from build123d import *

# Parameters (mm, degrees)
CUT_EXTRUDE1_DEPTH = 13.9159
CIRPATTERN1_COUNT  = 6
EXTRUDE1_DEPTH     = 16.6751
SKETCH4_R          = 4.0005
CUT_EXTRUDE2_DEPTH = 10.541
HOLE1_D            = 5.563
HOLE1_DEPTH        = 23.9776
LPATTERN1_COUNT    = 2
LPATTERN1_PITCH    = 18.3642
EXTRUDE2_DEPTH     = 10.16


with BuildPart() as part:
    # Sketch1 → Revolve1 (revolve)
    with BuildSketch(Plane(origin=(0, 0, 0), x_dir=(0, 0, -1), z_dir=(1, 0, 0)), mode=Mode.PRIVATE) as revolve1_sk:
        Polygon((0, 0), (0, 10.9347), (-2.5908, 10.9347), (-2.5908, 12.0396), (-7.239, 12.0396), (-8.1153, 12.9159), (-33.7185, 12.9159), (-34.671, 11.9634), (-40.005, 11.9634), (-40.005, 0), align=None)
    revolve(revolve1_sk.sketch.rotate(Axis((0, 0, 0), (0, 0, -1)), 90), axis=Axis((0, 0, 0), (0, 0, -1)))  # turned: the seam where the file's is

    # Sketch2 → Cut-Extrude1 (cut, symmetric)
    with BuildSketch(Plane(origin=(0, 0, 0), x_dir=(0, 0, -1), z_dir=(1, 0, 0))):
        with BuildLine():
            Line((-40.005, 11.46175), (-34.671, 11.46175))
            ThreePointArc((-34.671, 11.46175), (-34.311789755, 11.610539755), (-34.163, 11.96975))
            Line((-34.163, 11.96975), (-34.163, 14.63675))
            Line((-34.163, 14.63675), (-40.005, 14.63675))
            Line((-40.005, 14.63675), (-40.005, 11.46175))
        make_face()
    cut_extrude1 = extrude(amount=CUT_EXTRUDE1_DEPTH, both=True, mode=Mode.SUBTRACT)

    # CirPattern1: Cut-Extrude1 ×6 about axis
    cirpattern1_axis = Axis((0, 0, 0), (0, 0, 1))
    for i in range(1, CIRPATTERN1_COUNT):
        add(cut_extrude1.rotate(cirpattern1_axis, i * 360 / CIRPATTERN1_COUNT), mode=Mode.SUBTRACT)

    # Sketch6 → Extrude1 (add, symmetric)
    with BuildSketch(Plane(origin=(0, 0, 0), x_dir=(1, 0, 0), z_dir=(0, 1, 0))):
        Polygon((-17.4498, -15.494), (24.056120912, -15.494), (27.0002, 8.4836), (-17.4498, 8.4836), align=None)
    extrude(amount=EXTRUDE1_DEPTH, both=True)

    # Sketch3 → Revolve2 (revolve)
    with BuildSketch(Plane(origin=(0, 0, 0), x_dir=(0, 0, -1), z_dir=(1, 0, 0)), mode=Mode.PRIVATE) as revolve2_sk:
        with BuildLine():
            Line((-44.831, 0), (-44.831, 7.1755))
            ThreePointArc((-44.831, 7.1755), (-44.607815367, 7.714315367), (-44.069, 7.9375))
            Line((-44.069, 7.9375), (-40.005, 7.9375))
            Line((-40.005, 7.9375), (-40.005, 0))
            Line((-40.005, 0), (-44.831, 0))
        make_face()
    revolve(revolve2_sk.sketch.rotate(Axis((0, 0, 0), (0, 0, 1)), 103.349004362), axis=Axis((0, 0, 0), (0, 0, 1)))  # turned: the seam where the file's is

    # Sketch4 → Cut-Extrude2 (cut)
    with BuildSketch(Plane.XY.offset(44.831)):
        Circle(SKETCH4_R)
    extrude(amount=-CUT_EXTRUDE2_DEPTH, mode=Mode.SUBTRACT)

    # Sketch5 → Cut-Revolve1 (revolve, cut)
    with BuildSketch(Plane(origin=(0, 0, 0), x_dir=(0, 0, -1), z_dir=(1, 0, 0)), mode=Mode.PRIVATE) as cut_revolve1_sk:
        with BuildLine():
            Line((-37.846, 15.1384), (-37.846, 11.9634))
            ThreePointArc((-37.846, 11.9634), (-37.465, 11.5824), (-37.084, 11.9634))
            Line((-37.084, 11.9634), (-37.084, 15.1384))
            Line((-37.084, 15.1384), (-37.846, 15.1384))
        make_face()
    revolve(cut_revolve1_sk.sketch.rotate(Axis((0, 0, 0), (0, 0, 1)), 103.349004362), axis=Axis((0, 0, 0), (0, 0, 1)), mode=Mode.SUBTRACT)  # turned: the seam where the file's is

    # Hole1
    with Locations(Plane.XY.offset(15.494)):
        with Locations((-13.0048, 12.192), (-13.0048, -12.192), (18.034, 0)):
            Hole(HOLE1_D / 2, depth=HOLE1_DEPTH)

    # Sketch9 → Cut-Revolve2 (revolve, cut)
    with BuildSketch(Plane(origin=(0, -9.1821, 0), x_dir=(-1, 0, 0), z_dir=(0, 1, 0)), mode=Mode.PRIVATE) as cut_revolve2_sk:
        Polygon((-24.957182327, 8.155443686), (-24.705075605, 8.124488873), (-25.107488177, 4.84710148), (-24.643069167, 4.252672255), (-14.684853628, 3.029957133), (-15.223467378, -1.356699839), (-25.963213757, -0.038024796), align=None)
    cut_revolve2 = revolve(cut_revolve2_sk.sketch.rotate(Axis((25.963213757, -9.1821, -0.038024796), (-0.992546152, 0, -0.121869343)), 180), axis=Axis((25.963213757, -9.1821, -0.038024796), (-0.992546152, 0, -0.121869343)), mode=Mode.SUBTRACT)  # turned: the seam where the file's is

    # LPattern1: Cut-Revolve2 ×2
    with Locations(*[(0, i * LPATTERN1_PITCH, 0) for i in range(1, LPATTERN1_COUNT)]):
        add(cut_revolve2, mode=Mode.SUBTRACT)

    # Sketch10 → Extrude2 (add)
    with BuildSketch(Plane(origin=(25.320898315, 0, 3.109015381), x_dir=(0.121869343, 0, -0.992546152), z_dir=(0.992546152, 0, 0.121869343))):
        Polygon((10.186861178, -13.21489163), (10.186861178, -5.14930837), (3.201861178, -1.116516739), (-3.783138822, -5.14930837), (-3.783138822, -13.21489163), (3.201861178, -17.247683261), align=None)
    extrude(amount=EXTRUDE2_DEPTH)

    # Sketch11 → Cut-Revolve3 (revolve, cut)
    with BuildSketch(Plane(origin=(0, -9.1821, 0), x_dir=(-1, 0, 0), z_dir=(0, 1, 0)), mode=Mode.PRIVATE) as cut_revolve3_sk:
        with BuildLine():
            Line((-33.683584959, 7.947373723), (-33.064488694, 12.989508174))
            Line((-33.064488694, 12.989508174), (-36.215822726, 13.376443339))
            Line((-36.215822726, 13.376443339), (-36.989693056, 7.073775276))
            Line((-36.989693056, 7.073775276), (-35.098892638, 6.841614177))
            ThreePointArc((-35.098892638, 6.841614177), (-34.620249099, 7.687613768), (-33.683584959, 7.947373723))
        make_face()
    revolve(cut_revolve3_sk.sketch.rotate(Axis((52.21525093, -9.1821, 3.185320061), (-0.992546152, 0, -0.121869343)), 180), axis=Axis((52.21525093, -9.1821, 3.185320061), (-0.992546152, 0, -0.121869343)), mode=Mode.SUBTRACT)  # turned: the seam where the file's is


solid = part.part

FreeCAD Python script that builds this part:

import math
import FreeCAD as App
import Part
import Sketcher
Q = App.Units.Quantity


def add_polygon(sketch, points):
    """Adds a closed chain of lines whose ends are joined by coincident constraints."""
    first, n = sketch.GeometryCount, len(points)
    for a, b in zip(points, points[1:] + points[:1]):
        sketch.addGeometry(Part.LineSegment(App.Vector(*a, 0), App.Vector(*b, 0)), False)
    for i in range(n):
        sketch.addConstraint(Sketcher.Constraint("Coincident", first + i, 2, first + (i + 1) % n, 1))

doc = App.newDocument("Part")
params = doc.addObject("Spreadsheet::Sheet", "Params")
for row, (alias, value) in enumerate([
    ("sketch1_height", "0.21 in"),
    ("sketch1_width", "0.471 in"),
    ("sketch1_height2", "0.102 in"),
    ("sketch1_height3", "0.183 in"),
    ("sketch1_height4", "1.008 in"),
    ("revolution_angle", "360 deg"),
    ("sketch2_radius", "0.02 in"),
    ("sketch2_height", "0.21 in"),
    ("sketch2_width", "0.105 in"),
    ("pocket1_length", "27.8318 mm"),
    ("sketch3_width", "1.75 in"),
    ("sketch3_height", "0.944 in"),
    ("pad1_length", "1.313 in"),
    ("sketch4_radius", "0.03 in"),
    ("sketch4_height", "0.19 in"),
    ("sketch4_width", "0.3125 in"),
    ("revolution2_angle", "360 deg"),
    ("sketch5_diameter", "0.315 in"),
    ("pocket2_length", "0.415 in"),
    ("sketch6_radius", "0.015 in"),
    ("sketch6_width", "0.125 in"),
    ("groove_angle", "360 deg"),
    ("hole_diameter", "5.563 mm"),
    ("hole_depth", "0.944 in"),
    ("sketch8_length", "0.01 in"),
    ("sketch8_length2", "0.13 in"),
    ("sketch8_length3", "0.325 in"),
    ("sketch8_length4", "0.426 in"),
    ("sketch8_length5", "0.174 in"),
    ("groove2_angle", "360 deg"),
    ("linearpattern_pitch", "0.723 in"),
    ("pad2_length", "0.4 in"),
    ("sketch10_radius", "0.05 in"),
    ("sketch10_length", "0.2 in"),
    ("sketch10_length2", "0.25 in"),
    ("sketch10_length3", "0.125 in"),
    ("sketch10_length4", "0.075 in"),
    ("groove3_angle", "360 deg"),
], start=1):
    params.set(f"A{row}", alias)
    params.set(f"B{row}", "=" + value)
    params.setAlias(f"B{row}", alias)

body = doc.addObject("PartDesign::Body", "Body")

# Sketch on YZ plane
sketch1 = body.newObject("Sketcher::SketchObject", "Sketch")
sketch1.AttachmentSupport = (doc.getObject("YZ_Plane"), [""])
sketch1.MapMode = "FlatFace"
add_polygon(sketch1, [(0, 0), (10.9, 0), (10.9, 2.6), (12, 2.6), (12, 7.2), (12.9, 8.1), (12.9, 33.7), (12, 34.7), (12, 40), (0, 40)])  # lines 0-9
sketch1.addConstraint(Sketcher.Constraint("Horizontal", 0))
sketch1.addConstraint(Sketcher.Constraint("Vertical", 1))
sketch1.addConstraint(Sketcher.Constraint("Horizontal", 2))
sketch1.addConstraint(Sketcher.Constraint("Vertical", 3))
sketch1.addConstraint(Sketcher.Constraint("Vertical", 5))
sketch1.addConstraint(Sketcher.Constraint("Vertical", 7))
sketch1.addConstraint(Sketcher.Constraint("Horizontal", 8))
sketch1.addConstraint(Sketcher.Constraint("Vertical", 9))
sketch1.addConstraint(Sketcher.Constraint("Coincident", 9, 2, -1, 1))
sketch1.addConstraint(Sketcher.Constraint("Perpendicular", 4, 6))
sketch1.addConstraint(Sketcher.Constraint("Angle", 4, Q("45 deg")))
sketch1.addConstraint(Sketcher.Constraint("DistanceY", 7, 1, 7, 2, Q("0.21 in")))
sketch1.addConstraint(Sketcher.Constraint("DistanceX", 8, 2, 8, 1, Q("0.471 in")))
sketch1.addConstraint(Sketcher.Constraint("DistanceY", 1, 1, 1, 2, Q("0.102 in")))
sketch1.addConstraint(Sketcher.Constraint("DistanceY", 3, 1, 3, 2, Q("0.183 in")))
sketch1.addConstraint(Sketcher.Constraint("DistanceY", 5, 1, 5, 2, Q("1.008 in")))
sketch1.addConstraint(Sketcher.Constraint("DistanceY", 9, 2, 9, 1, Q("1.575 in")))
sketch1.addConstraint(Sketcher.Constraint("DistanceX", 0, 1, 0, 2, Q("0.4305 in")))
sketch1.addConstraint(Sketcher.Constraint("DistanceX", 2, 1, 2, 2, Q("0.0435 in")))
sketch1.setExpression("Constraints[21]", "Params.sketch1_height")
sketch1.setExpression("Constraints[22]", "Params.sketch1_width")
sketch1.setExpression("Constraints[23]", "Params.sketch1_height2")
sketch1.setExpression("Constraints[24]", "Params.sketch1_height3")
sketch1.setExpression("Constraints[25]", "Params.sketch1_height4")
revolution = body.newObject("PartDesign::Revolution", "Revolution")
revolution.Profile = sketch1
revolution.ReferenceAxis = (sketch1, ["V_Axis"])
revolution.setExpression("Angle", "Params.revolution_angle")

# Sketch on YZ plane
sketch2 = body.newObject("Sketcher::SketchObject", "Sketch001")
sketch2.AttachmentSupport = (doc.getObject("YZ_Plane"), [""])
sketch2.MapMode = "FlatFace"
sketch2.addGeometry(Part.LineSegment(App.Vector(11.5, 40, 0), App.Vector(11.5, 34.7, 0)), False)
sketch2.addGeometry(Part.ArcOfCircle(Part.Circle(App.Vector(12, 34.7, 0), App.Vector(0, 0, 1), 0.5), math.radians(180), math.radians(270)), False)
sketch2.addGeometry(Part.LineSegment(App.Vector(12, 34.2, 0), App.Vector(14.6, 34.2, 0)), False)
sketch2.addGeometry(Part.LineSegment(App.Vector(14.6, 34.2, 0), App.Vector(14.6, 40, 0)), False)
sketch2.addGeometry(Part.LineSegment(App.Vector(14.6, 40, 0), App.Vector(11.5, 40, 0)), False)
sketch2.addConstraint(Sketcher.Constraint("Tangent", 0, 2, 1, 1))
sketch2.addConstraint(Sketcher.Constraint("Tangent", 1, 2, 2, 1))
sketch2.addConstraint(Sketcher.Constraint("Coincident", 2, 2, 3, 1))
sketch2.addConstraint(Sketcher.Constraint("Coincident", 3, 2, 4, 1))
sketch2.addConstraint(Sketcher.Constraint("Coincident", 4, 2, 0, 1))
sketch2.addConstraint(Sketcher.Constraint("Vertical", 0))
sketch2.addConstraint(Sketcher.Constraint("Horizontal", 2))
sketch2.addConstraint(Sketcher.Constraint("Vertical", 3))
sketch2.addConstraint(Sketcher.Constraint("Horizontal", 4))
sketch2.addConstraint(Sketcher.Constraint("Radius", 1, Q("0.02 in")))
sketch2.addConstraint(Sketcher.Constraint("DistanceY", 0, 2, 0, 1, Q("0.21 in")))
sketch2.addConstraint(Sketcher.Constraint("DistanceX", 2, 1, 2, 2, Q("0.105 in")))
sketch2.addConstraint(Sketcher.Constraint("DistanceY", -1, 1, 1, 3, Q("1.365 in")))
sketch2.addConstraint(Sketcher.Constraint("DistanceX", -1, 1, 1, 3, 11.96975))
sketch2.setExpression("Constraints[9]", "Params.sketch2_radius")
sketch2.setExpression("Constraints[10]", "Params.sketch2_height")
sketch2.setExpression("Constraints[11]", "Params.sketch2_width")
pocket1 = body.newObject("PartDesign::Pocket", "Pocket")
pocket1.Profile = sketch2
pocket1.setExpression("Length", "Params.pocket1_length")
pocket1.Midplane = True
doc.recompute()

polarpattern = body.newObject("PartDesign::PolarPattern", "PolarPattern")
polarpattern.Originals = [pocket1]
polarpattern.Axis = (doc.getObject("Z_Axis"), [""])
polarpattern.Angle = 360
polarpattern.Occurrences = 6
body.Tip = polarpattern

# Sketch on XZ plane
sketch3 = body.newObject("Sketcher::SketchObject", "Sketch002")
sketch3.AttachmentSupport = (doc.getObject("XZ_Plane"), [""])
sketch3.MapMode = "FlatFace"
add_polygon(sketch3, [(-17, 15), (24, 15), (27, -8), (-17, -8)])  # lines 0-3
sketch3.addConstraint(Sketcher.Constraint("Horizontal", 0))
sketch3.addConstraint(Sketcher.Constraint("Horizontal", 2))
sketch3.addConstraint(Sketcher.Constraint("Vertical", 3))
sketch3.addConstraint(Sketcher.Constraint("Angle", 1, Q("-83 deg")))
sketch3.addConstraint(Sketcher.Constraint("DistanceX", 2, 2, 2, 1, Q("1.75 in")))
sketch3.addConstraint(Sketcher.Constraint("DistanceY", 3, 1, 3, 2, Q("0.944 in")))
sketch3.addConstraint(Sketcher.Constraint("DistanceY", -1, 1, 0, 2, Q("0.61 in")))
sketch3.addConstraint(Sketcher.Constraint("DistanceX", -1, 1, 1, 2, Q("1.063 in")))
sketch3.setExpression("Constraints[8]", "Params.sketch3_width")
sketch3.setExpression("Constraints[9]", "Params.sketch3_height")
pad1 = body.newObject("PartDesign::Pad", "Pad")
pad1.Profile = sketch3
pad1.setExpression("Length", "Params.pad1_length")
pad1.Midplane = True

# Sketch on YZ plane
sketch4 = body.newObject("Sketcher::SketchObject", "Sketch003")
sketch4.AttachmentSupport = (doc.getObject("YZ_Plane"), [""])
sketch4.MapMode = "FlatFace"
sketch4.addGeometry(Part.LineSegment(App.Vector(7.2, 44.8, 0), App.Vector(0, 44.8, 0)), False)
sketch4.addGeometry(Part.LineSegment(App.Vector(0, 44.8, 0), App.Vector(0, 40, 0)), False)
sketch4.addGeometry(Part.LineSegment(App.Vector(0, 40, 0), App.Vector(7.9, 40, 0)), False)
sketch4.addGeometry(Part.LineSegment(App.Vector(7.9, 40, 0), App.Vector(7.9, 44.1, 0)), False)
sketch4.addGeometry(Part.ArcOfCircle(Part.Circle(App.Vector(7.2, 44.1, 0), App.Vector(0, 0, 1), 0.8), math.radians(0), math.radians(90)), False)
sketch4.addConstraint(Sketcher.Constraint("Coincident", 0, 2, 1, 1))
sketch4.addConstraint(Sketcher.Constraint("Coincident", 1, 2, 2, 1))
sketch4.addConstraint(Sketcher.Constraint("Coincident", 2, 2, 3, 1))
sketch4.addConstraint(Sketcher.Constraint("Tangent", 3, 2, 4, 1))
sketch4.addConstraint(Sketcher.Constraint("Tangent", 4, 2, 0, 1))
sketch4.addConstraint(Sketcher.Constraint("Horizontal", 0))
sketch4.addConstraint(Sketcher.Constraint("Vertical", 1))
sketch4.addConstraint(Sketcher.Constraint("Horizontal", 2))
sketch4.addConstraint(Sketcher.Constraint("Vertical", 3))
sketch4.addConstraint(Sketcher.Constraint("PointOnObject", 0, 2, -2))
sketch4.addConstraint(Sketcher.Constraint("Radius", 4, Q("0.03 in")))
sketch4.addConstraint(Sketcher.Constraint("DistanceY", 1, 2, 1, 1, Q("0.19 in")))
sketch4.addConstraint(Sketcher.Constraint("DistanceX", 2, 1, 2, 2, Q("0.3125 in")))
sketch4.addConstraint(Sketcher.Constraint("DistanceY", -1, 1, 4, 3, Q("1.735 in")))
sketch4.setExpression("Constraints[10]", "Params.sketch4_radius")
sketch4.setExpression("Constraints[11]", "Params.sketch4_height")
sketch4.setExpression("Constraints[12]", "Params.sketch4_width")
revolution2 = body.newObject("PartDesign::Revolution", "Revolution001")
revolution2.Profile = sketch4
revolution2.ReferenceAxis = (sketch4, ["V_Axis"])
revolution2.setExpression("Angle", "Params.revolution2_angle")

# Sketch on XY plane
sketch5 = body.newObject("Sketcher::SketchObject", "Sketch004")
sketch5.AttachmentSupport = (doc.getObject("XY_Plane"), [""])
sketch5.MapMode = "FlatFace"
sketch5.AttachmentOffset = App.Placement(App.Vector(0, 0, 1.765 * 25.4), App.Rotation())
sketch5.addGeometry(Part.Circle(App.Vector(0, 0, 0), App.Vector(0, 0, 1), 4), False)
sketch5.addConstraint(Sketcher.Constraint("Coincident", 0, 3, -1, 1))
sketch5.addConstraint(Sketcher.Constraint("Diameter", 0, Q("0.315 in")))
sketch5.setExpression("Constraints[1]", "Params.sketch5_diameter")
pocket2 = body.newObject("PartDesign::Pocket", "Pocket001")
pocket2.Profile = sketch5
pocket2.setExpression("Length", "Params.pocket2_length")

# Sketch on YZ plane
sketch6 = body.newObject("Sketcher::SketchObject", "Sketch005")
sketch6.AttachmentSupport = (doc.getObject("YZ_Plane"), [""])
sketch6.MapMode = "FlatFace"
sketch6.addGeometry(Part.LineSegment(App.Vector(15.14, 37.85, 0), App.Vector(11.96, 37.85, 0)), False)
sketch6.addGeometry(Part.ArcOfCircle(Part.Circle(App.Vector(11.96, 37.47, 0), App.Vector(0, 0, 1), 0.38), math.radians(90), math.radians(270)), False)
sketch6.addGeometry(Part.LineSegment(App.Vector(11.96, 37.08, 0), App.Vector(15.14, 37.08, 0)), False)
sketch6.addGeometry(Part.LineSegment(App.Vector(15.14, 37.08, 0), App.Vector(15.14, 37.85, 0)), False)
sketch6.addConstraint(Sketcher.Constraint("Tangent", 0, 2, 1, 1))
sketch6.addConstraint(Sketcher.Constraint("Tangent", 1, 2, 2, 1))
sketch6.addConstraint(Sketcher.Constraint("Coincident", 2, 2, 3, 1))
sketch6.addConstraint(Sketcher.Constraint("Coincident", 3, 2, 0, 1))
sketch6.addConstraint(Sketcher.Constraint("Horizontal", 0))
sketch6.addConstraint(Sketcher.Constraint("Horizontal", 2))
sketch6.addConstraint(Sketcher.Constraint("Vertical", 3))
sketch6.addConstraint(Sketcher.Constraint("Radius", 1, Q("0.015 in")))
sketch6.addConstraint(Sketcher.Constraint("DistanceX", 0, 2, 0, 1, Q("0.125 in")))
sketch6.addConstraint(Sketcher.Constraint("DistanceY", -1, 1, 0, 2, Q("1.49 in")))
sketch6.addConstraint(Sketcher.Constraint("DistanceX", -1, 1, 1, 3, Q("0.471 in")))
sketch6.setExpression("Constraints[7]", "Params.sketch6_radius")
sketch6.setExpression("Constraints[8]", "Params.sketch6_width")
groove = body.newObject("PartDesign::Groove", "Groove")
groove.Profile = sketch6
groove.ReferenceAxis = (sketch6, ["V_Axis"])
groove.setExpression("Angle", "Params.groove_angle")

# Sketch on XY plane
sketch7 = body.newObject("Sketcher::SketchObject", "Sketch006")
sketch7.AttachmentSupport = (doc.getObject("XY_Plane"), [""])
sketch7.MapMode = "FlatFace"
sketch7.AttachmentOffset = App.Placement(App.Vector(0, 0, 0.61 * 25.4), App.Rotation())
sketch7.addGeometry(Part.Circle(App.Vector(-13, 12.2, 0), App.Vector(0, 0, 1), 2.8), False)
sketch7.addGeometry(Part.Circle(App.Vector(-13, -12.2, 0), App.Vector(0, 0, 1), 2.8), False)
sketch7.addGeometry(Part.Circle(App.Vector(18, 0, 0), App.Vector(0, 0, 1), 2.8), False)
sketch7.addConstraint(Sketcher.Constraint("Equal", 0, 1))
sketch7.addConstraint(Sketcher.Constraint("Equal", 1, 2))
sketch7.addConstraint(Sketcher.Constraint("Symmetric", 0, 3, 1, 3, -1))
sketch7.addConstraint(Sketcher.Constraint("PointOnObject", 2, 3, -1))
sketch7.addConstraint(Sketcher.Constraint("Diameter", 0, 5.563))
sketch7.addConstraint(Sketcher.Constraint("DistanceY", -1, 1, 0, 3, Q("0.48 in")))
sketch7.addConstraint(Sketcher.Constraint("DistanceX", -1, 1, 2, 3, Q("0.71 in")))
sketch7.addConstraint(Sketcher.Constraint("DistanceX", 0, 3, -1, 1, Q("0.512 in")))
doc.recompute()
hole = body.newObject("PartDesign::Hole", "Hole")
hole.Profile = sketch7
hole.ThreadType = "None"
hole.setExpression("Diameter", "Params.hole_diameter")
hole.DepthType = "Dimension"
hole.setExpression("Depth", "Params.hole_depth")
hole.DrillPoint = "Flat"

# Sketch on XZ plane
sketch8 = body.newObject("Sketcher::SketchObject", "Sketch007")
sketch8.AttachmentSupport = (doc.getObject("XZ_Plane"), [""])
sketch8.MapMode = "FlatFace"
sketch8.AttachmentOffset = App.Placement(App.Vector(0, 0, 0.3615 * 25.4), App.Rotation())
add_polygon(sketch8, [(24.71, 8.12), (24.96, 8.16), (25.96, -0.04), (15.22, -1.36), (14.68, 3.03), (24.64, 4.25), (25.11, 4.85)])  # lines 0-6
sketch8.addGeometry(Part.LineSegment(App.Vector(25.96, -0.04, 0), App.Vector(15.22, -1.36, 0)), True)  # axis
sketch8.addConstraint(Sketcher.Constraint("Coincident", 7, 1, 1, 2))
sketch8.addConstraint(Sketcher.Constraint("Coincident", 7, 2, 2, 2))
sketch8.addConstraint(Sketcher.Constraint("Perpendicular", 0, 1))
sketch8.addConstraint(Sketcher.Constraint("Perpendicular", 1, 2))
sketch8.addConstraint(Sketcher.Constraint("Perpendicular", 2, 3))
sketch8.addConstraint(Sketcher.Constraint("Perpendicular", 3, 4))
sketch8.addConstraint(Sketcher.Constraint("Perpendicular", 4, 6))
sketch8.addConstraint(Sketcher.Constraint("Angle", 0, Q("7 deg")))
sketch8.addConstraint(Sketcher.Constraint("Angle", 5, Q("52 deg")))
sketch8.addConstraint(Sketcher.Constraint("Distance", 0, Q("0.01 in")))
sketch8.addConstraint(Sketcher.Constraint("Distance", 6, Q("0.13 in")))
sketch8.addConstraint(Sketcher.Constraint("Distance", 1, Q("0.325 in")))
sketch8.addConstraint(Sketcher.Constraint("Distance", 2, Q("0.426 in")))
sketch8.addConstraint(Sketcher.Constraint("Distance", 3, Q("0.174 in")))
sketch8.addConstraint(Sketcher.Constraint("DistanceY", 2, 2, -1, 1, 1.3567))
sketch8.addConstraint(Sketcher.Constraint("DistanceX", -1, 1, 4, 2, 24.643069))
sketch8.setExpression("Constraints[16]", "Params.sketch8_length")
sketch8.setExpression("Constraints[17]", "Params.sketch8_length2")
sketch8.setExpression("Constraints[18]", "Params.sketch8_length3")
sketch8.setExpression("Constraints[19]", "Params.sketch8_length4")
sketch8.setExpression("Constraints[20]", "Params.sketch8_length5")
groove2 = body.newObject("PartDesign::Groove", "Groove001")
groove2.Profile = sketch8
groove2.ReferenceAxis = (sketch8, ["Axis0"])
groove2.setExpression("Angle", "Params.groove2_angle")
doc.recompute()

linearpattern = body.newObject("PartDesign::LinearPattern", "LinearPattern")
linearpattern.Originals = [groove2]
linearpattern.Direction = (doc.getObject("Y_Axis"), [""])
linearpattern.Mode = "offset"
linearpattern.setExpression("Offset", "Params.linearpattern_pitch")
linearpattern.Occurrences = 2
body.Tip = linearpattern

# Sketch on an angled plane
sketch9 = body.newObject("Sketcher::SketchObject", "Sketch008")
sketch9.Placement = App.Placement(App.Vector(25.320898, 0, 3.109015), App.Rotation(App.Vector(0.121869343, 0, -0.992546152), App.Vector(0, 1.000000001, 0), App.Vector(0.992546152, 0, 0.121869343), "ZXY"))
add_polygon(sketch9, [(10, -13), (10, -5), (3, -1), (-4, -5), (-4, -13), (3, -17)])  # lines 0-5
sketch9.addConstraint(Sketcher.Constraint("Vertical", 0))
sketch9.addConstraint(Sketcher.Constraint("Vertical", 3))
sketch9.addConstraint(Sketcher.Constraint("Parallel", 1, 4))
sketch9.addConstraint(Sketcher.Constraint("Parallel", 2, 5))
sketch9.addConstraint(Sketcher.Constraint("Horizontal", 0, 2, 2, 2))
sketch9.addConstraint(Sketcher.Constraint("Horizontal", 3, 2, 5, 2))
sketch9.addConstraint(Sketcher.Constraint("Vertical", 1, 2, 4, 2))
sketch9.addConstraint(Sketcher.Constraint("Angle", 1, Q("150 deg")))
sketch9.addConstraint(Sketcher.Constraint("DistanceX", 2, 2, 0, 2, Q("0.55 in")))
sketch9.addConstraint(Sketcher.Constraint("DistanceY", 0, 1, 0, 2, 8.065583))
sketch9.addConstraint(Sketcher.Constraint("DistanceX", -1, 1, 0, 2, 10.186861))
sketch9.addConstraint(Sketcher.Constraint("DistanceY", 0, 2, -1, 1, 5.149308))
pad2 = body.newObject("PartDesign::Pad", "Pad001")
pad2.Profile = sketch9
pad2.setExpression("Length", "Params.pad2_length")

# Sketch on XZ plane
sketch10 = body.newObject("Sketcher::SketchObject", "Sketch009")
sketch10.AttachmentSupport = (doc.getObject("XZ_Plane"), [""])
sketch10.MapMode = "FlatFace"
sketch10.AttachmentOffset = App.Placement(App.Vector(0, 0, 0.3615 * 25.4), App.Rotation())
sketch10.addGeometry(Part.LineSegment(App.Vector(33.7, 7.9, 0), App.Vector(33.1, 13, 0)), False)
sketch10.addGeometry(Part.LineSegment(App.Vector(33.1, 13, 0), App.Vector(36.2, 13.4, 0)), False)
sketch10.addGeometry(Part.LineSegment(App.Vector(36.2, 13.4, 0), App.Vector(37, 7.1, 0)), False)
sketch10.addGeometry(Part.LineSegment(App.Vector(37, 7.1, 0), App.Vector(35.1, 6.8, 0)), False)
sketch10.addGeometry(Part.ArcOfCircle(Part.Circle(App.Vector(33.8, 6.7, 0), App.Vector(0, 0, 1), 1.3), math.radians(7), math.radians(97)), False)
sketch10.addGeometry(Part.LineSegment(App.Vector(37.7, 1.4, 0), App.Vector(34.5, 1, 0)), True)  # axis
sketch10.addConstraint(Sketcher.Constraint("Coincident", 0, 2, 1, 1))
sketch10.addConstraint(Sketcher.Constraint("Coincident", 1, 2, 2, 1))
sketch10.addConstraint(Sketcher.Constraint("Coincident", 2, 2, 3, 1))
sketch10.addConstraint(Sketcher.Constraint("Coincident", 3, 2, 4, 1))
sketch10.addConstraint(Sketcher.Constraint("Coincident", 4, 2, 0, 1))
sketch10.addConstraint(Sketcher.Constraint("Perpendicular", 0, 1))
sketch10.addConstraint(Sketcher.Constraint("Perpendicular", 1, 2))
sketch10.addConstraint(Sketcher.Constraint("Perpendicular", 2, 3))
sketch10.addConstraint(Sketcher.Constraint("Parallel", 3, 5))
sketch10.addConstraint(Sketcher.Constraint("Equal", 1, 5))
sketch10.addConstraint(Sketcher.Constraint("Radius", 4, Q("0.05 in")))
sketch10.addConstraint(Sketcher.Constraint("Angle", 0, Q("97 deg")))
sketch10.addConstraint(Sketcher.Constraint("Distance", 0, Q("0.2 in")))
sketch10.addConstraint(Sketcher.Constraint("Distance", 2, Q("0.25 in")))
sketch10.addConstraint(Sketcher.Constraint("Distance", 1, Q("0.125 in")))
sketch10.addConstraint(Sketcher.Constraint("Distance", 3, Q("0.075 in")))
sketch10.addConstraint(Sketcher.Constraint("DistanceY", 5, 1, 2, 2, 5.672401))
sketch10.addConstraint(Sketcher.Constraint("DistanceX", -1, 1, 4, 3, 33.838359))
sketch10.addConstraint(Sketcher.Constraint("DistanceY", -1, 1, 4, 3, 6.68684))
sketch10.addConstraint(Sketcher.Constraint("DistanceX", 4, 2, 5, 1, 4.002591))
sketch10.setExpression("Constraints[10]", "Params.sketch10_radius")
sketch10.setExpression("Constraints[12]", "Params.sketch10_length")
sketch10.setExpression("Constraints[13]", "Params.sketch10_length2")
sketch10.setExpression("Constraints[14]", "Params.sketch10_length3")
sketch10.setExpression("Constraints[15]", "Params.sketch10_length4")
groove3 = body.newObject("PartDesign::Groove", "Groove002")
groove3.Profile = sketch10
groove3.ReferenceAxis = (sketch10, ["Axis0"])
groove3.setExpression("Angle", "Params.groove3_angle")

doc.recompute()
